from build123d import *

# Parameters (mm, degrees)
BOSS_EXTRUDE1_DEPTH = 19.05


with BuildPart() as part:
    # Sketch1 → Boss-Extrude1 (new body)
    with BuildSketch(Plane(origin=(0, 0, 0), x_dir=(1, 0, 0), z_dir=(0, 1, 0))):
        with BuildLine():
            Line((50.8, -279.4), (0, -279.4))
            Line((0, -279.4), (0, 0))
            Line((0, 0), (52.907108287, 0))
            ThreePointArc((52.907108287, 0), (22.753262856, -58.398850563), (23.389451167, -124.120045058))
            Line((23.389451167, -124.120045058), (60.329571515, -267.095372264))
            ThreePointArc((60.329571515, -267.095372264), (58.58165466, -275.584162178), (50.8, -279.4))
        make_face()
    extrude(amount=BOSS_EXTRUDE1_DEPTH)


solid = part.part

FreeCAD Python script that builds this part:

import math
import FreeCAD as App
import Part
import Sketcher

V = App.Vector
Q = App.Units.Quantity

doc = App.newDocument("Part")
params = doc.addObject("Spreadsheet::Sheet", "Params")
for row, (alias, value) in enumerate([
    ("sketch1_width", "2 in"),
    ("sketch1_height", "11 in"),
    ("pad1_length", "0.75 in"),
], start=1):
    params.set(f"A{row}", alias)
    params.set(f"B{row}", "=" + value)
    params.setAlias(f"B{row}", alias)

body = doc.addObject("PartDesign::Body", "Body")

# Sketch on XZ plane
sketch1 = body.newObject("Sketcher::SketchObject", "Sketch")
sketch1.AttachmentSupport = (doc.getObject("XZ_Plane"), [""])
sketch1.MapMode = "FlatFace"
sketch1.addGeometry(Part.LineSegment(V(0, 279, 0), V(51, 279, 0)), False)
sketch1.addGeometry(Part.ArcOfCircle(Part.Circle(V(51, 270, 0), V(0, 0, 1), 10), math.radians(-14), math.radians(90)), False)
sketch1.addGeometry(Part.LineSegment(V(60, 267, 0), V(23, 124, 0)), False)
sketch1.addGeometry(Part.ArcOfCircle(Part.Circle(V(156, 90, 0), V(0, 0, 1), 136), math.radians(166), math.radians(221)), False)
sketch1.addGeometry(Part.LineSegment(V(53, 0, 0), V(0, 0, 0)), False)
sketch1.addGeometry(Part.LineSegment(V(0, 0, 0), V(0, 279, 0)), False)
sketch1.addConstraint(Sketcher.Constraint("Tangent", 0, 2, 1, 2))
sketch1.addConstraint(Sketcher.Constraint("Tangent", 1, 1, 2, 1))
sketch1.addConstraint(Sketcher.Constraint("Tangent", 2, 2, 3, 1))
sketch1.addConstraint(Sketcher.Constraint("Coincident", 3, 2, 4, 1))
sketch1.addConstraint(Sketcher.Constraint("Coincident", 4, 2, 5, 1))
sketch1.addConstraint(Sketcher.Constraint("Coincident", 5, 2, 0, 1))
sketch1.addConstraint(Sketcher.Constraint("Horizontal", 0))
sketch1.addConstraint(Sketcher.Constraint("Horizontal", 4))
sketch1.addConstraint(Sketcher.Constraint("Vertical", 5))
sketch1.addConstraint(Sketcher.Constraint("Coincident", 4, 2, -1, 1))
sketch1.addConstraint(Sketcher.Constraint("DistanceX", 0, 1, 0, 2, Q("2 in")))
sketch1.addConstraint(Sketcher.Constraint("DistanceY", 5, 1, 5, 2, Q("11 in")))
sketch1.addConstraint(Sketcher.Constraint("Radius", 1, Q("0.3875 in")))
sketch1.addConstraint(Sketcher.Constraint("Radius", 3, Q("136.488208 mm")))
sketch1.addConstraint(Sketcher.Constraint("DistanceX", 4, 2, 4, 1, Q("52.907108 mm")))
sketch1.addConstraint(Sketcher.Constraint("DistanceX", 3, 2, 3, 3, Q("102.6311 mm")))
sketch1.setExpression("Constraints[10]", "Params.sketch1_width")
sketch1.setExpression("Constraints[11]", "Params.sketch1_height")
pad1 = body.newObject("PartDesign::Pad", "Pad")
pad1.Profile = sketch1
pad1.setExpression("Length", "Params.pad1_length")
pad1.Reversed = True

doc.recompute()
